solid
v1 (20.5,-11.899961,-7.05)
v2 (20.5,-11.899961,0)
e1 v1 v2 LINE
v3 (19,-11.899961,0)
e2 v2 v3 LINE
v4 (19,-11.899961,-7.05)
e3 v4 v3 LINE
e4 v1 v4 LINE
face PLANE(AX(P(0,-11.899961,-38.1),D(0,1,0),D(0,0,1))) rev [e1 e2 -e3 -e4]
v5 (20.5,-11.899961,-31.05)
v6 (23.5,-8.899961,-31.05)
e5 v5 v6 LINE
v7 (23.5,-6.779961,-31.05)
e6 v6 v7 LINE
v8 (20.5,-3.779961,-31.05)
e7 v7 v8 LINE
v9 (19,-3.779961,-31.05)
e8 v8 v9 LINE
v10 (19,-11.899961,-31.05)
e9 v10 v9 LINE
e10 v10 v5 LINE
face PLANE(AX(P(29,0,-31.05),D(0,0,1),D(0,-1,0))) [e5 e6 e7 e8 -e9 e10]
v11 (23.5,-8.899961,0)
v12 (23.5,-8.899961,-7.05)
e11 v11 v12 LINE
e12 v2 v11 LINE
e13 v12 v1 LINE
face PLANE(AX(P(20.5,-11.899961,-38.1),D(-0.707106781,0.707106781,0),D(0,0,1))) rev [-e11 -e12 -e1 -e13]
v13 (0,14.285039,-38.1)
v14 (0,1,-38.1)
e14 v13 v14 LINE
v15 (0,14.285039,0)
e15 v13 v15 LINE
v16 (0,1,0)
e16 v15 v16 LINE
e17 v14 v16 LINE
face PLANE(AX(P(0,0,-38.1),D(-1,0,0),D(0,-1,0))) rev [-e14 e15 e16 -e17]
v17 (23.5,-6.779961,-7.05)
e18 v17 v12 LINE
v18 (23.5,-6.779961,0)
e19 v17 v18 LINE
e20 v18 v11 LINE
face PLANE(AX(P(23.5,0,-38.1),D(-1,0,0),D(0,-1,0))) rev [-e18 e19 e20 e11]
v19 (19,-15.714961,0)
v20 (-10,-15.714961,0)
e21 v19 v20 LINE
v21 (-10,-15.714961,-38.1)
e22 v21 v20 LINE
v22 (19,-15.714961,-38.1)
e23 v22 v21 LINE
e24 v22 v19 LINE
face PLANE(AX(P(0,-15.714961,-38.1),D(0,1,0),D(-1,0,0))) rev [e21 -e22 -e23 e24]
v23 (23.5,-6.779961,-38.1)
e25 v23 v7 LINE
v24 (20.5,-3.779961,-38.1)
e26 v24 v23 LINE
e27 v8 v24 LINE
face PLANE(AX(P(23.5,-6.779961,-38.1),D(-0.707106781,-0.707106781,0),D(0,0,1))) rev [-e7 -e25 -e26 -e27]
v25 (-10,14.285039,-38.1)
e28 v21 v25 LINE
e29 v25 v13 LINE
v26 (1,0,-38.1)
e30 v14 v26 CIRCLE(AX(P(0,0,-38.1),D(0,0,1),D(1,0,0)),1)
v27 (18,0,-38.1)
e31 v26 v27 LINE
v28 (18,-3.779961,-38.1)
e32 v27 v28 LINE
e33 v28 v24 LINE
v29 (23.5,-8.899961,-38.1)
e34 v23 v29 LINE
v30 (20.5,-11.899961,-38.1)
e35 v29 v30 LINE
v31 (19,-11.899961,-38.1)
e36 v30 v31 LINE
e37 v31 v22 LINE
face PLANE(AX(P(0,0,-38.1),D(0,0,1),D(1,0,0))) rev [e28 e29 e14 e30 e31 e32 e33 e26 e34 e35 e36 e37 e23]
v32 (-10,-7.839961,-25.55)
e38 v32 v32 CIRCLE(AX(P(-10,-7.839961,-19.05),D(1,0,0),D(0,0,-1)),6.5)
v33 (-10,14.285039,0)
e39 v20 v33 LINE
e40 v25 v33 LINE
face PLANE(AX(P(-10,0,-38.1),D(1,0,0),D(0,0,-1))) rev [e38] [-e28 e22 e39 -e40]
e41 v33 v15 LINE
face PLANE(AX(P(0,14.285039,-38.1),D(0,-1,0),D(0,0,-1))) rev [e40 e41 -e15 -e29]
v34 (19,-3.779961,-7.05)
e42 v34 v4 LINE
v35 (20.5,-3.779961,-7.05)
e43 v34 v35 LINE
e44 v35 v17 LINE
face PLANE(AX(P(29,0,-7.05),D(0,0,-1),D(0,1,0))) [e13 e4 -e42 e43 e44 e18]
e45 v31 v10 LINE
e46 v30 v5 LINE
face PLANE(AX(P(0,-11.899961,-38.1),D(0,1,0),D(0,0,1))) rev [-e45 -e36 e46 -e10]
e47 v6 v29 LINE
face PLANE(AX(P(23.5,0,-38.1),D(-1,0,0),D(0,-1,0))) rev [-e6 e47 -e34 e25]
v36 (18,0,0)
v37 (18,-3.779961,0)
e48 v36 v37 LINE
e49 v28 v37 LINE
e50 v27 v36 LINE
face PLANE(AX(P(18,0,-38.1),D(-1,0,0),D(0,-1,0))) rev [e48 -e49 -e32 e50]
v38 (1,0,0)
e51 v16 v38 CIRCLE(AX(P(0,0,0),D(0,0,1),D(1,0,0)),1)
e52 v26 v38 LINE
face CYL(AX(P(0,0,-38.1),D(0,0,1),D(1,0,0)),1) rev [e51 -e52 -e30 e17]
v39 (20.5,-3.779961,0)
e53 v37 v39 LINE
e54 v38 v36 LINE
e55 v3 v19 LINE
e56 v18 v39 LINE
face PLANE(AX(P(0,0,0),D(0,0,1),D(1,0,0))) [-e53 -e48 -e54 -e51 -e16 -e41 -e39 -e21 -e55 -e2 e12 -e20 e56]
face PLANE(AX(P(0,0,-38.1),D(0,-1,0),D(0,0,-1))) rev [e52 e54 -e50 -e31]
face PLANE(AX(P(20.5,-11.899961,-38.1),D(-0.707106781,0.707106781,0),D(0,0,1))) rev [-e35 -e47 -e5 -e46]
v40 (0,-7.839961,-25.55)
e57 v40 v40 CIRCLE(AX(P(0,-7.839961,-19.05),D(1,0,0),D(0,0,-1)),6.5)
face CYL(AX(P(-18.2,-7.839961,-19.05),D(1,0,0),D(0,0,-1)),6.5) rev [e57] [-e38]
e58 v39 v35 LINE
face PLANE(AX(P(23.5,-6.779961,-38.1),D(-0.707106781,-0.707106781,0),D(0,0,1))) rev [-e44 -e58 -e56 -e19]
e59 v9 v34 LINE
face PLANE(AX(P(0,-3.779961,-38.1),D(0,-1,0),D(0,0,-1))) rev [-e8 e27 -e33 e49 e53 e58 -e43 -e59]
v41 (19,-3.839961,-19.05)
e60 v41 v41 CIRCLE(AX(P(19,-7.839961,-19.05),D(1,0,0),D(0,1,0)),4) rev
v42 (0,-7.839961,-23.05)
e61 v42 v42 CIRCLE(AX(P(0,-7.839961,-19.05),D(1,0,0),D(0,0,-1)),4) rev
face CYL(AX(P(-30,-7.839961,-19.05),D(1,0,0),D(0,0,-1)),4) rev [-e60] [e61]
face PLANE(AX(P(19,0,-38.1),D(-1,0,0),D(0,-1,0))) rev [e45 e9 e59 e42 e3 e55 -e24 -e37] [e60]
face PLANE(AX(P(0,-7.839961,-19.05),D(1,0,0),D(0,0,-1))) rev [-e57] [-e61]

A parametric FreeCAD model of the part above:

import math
import FreeCAD as App
import Part
import Sketcher
Q = App.Units.Quantity


def edges_at(feature, points):
    """Names of the edges that pass closest to the given points."""
    edges = feature.Shape.Edges
    near = lambda p: min(range(len(edges)), key=lambda i: edges[i].distToShape(Part.Vertex(*p))[0])
    return sorted({f"Edge{near(p) + 1}" for p in points})

doc = App.newDocument("Part")
params = doc.addObject("Spreadsheet::Sheet", "Params")
for row, (alias, value) in enumerate([
    ("sketch1_radius", "1 mm"),
    ("sketch1_width", "29 mm"),
    ("sketch1_width2", "17 mm"),
    ("sketch1_width3", "10 mm"),
    ("sketch1_height", "30 mm"),
    ("pad1_length", "38.1 mm"),
    ("sketch2_diameter", "8 mm"),
    ("sketch3_diameter", "13 mm"),
    ("pocket2_length", "18.2 mm"),
    ("sketch4_width", "20 mm"),
    ("sketch4_height", "24 mm"),
    ("pocket3_length", "10 mm"),
    ("chamfer_size", "3 mm"),
], start=1):
    params.set(f"A{row}", alias)
    params.set(f"B{row}", "=" + value)
    params.setAlias(f"B{row}", alias)

body = doc.addObject("PartDesign::Body", "Body")

# Sketch on XY plane
sketch1 = body.newObject("Sketcher::SketchObject", "Sketch")
sketch1.AttachmentSupport = (doc.getObject("XY_Plane"), [""])
sketch1.MapMode = "FlatFace"
sketch1.addGeometry(Part.LineSegment(App.Vector(-10, 14.285039, 0), App.Vector(-10, -15.714961, 0)), False)
sketch1.addGeometry(Part.LineSegment(App.Vector(-10, -15.714961, 0), App.Vector(19, -15.714961, 0)), False)
sketch1.addGeometry(Part.LineSegment(App.Vector(19, -15.714961, 0), App.Vector(19, -11.899961, 0)), False)
sketch1.addGeometry(Part.LineSegment(App.Vector(19, -11.899961, 0), App.Vector(23.5, -11.899961, 0)), False)
sketch1.addGeometry(Part.LineSegment(App.Vector(23.5, -11.899961, 0), App.Vector(23.5, -3.779961, 0)), False)
sketch1.addGeometry(Part.LineSegment(App.Vector(23.5, -3.779961, 0), App.Vector(18, -3.779961, 0)), False)
sketch1.addGeometry(Part.LineSegment(App.Vector(18, -3.779961, 0), App.Vector(18, 0, 0)), False)
sketch1.addGeometry(Part.LineSegment(App.Vector(18, 0, 0), App.Vector(1, 0, 0)), False)
sketch1.addGeometry(Part.ArcOfCircle(Part.Circle(App.Vector(0, 0, 0), App.Vector(0, 0, 1), 1), math.radians(90), math.radians(360)), False)
sketch1.addGeometry(Part.LineSegment(App.Vector(0, 1, 0), App.Vector(0, 14.285039, 0)), False)
sketch1.addGeometry(Part.LineSegment(App.Vector(0, 14.285039, 0), App.Vector(-10, 14.285039, 0)), False)
sketch1.addConstraint(Sketcher.Constraint("Coincident", 0, 2, 1, 1))
sketch1.addConstraint(Sketcher.Constraint("Coincident", 1, 2, 2, 1))
sketch1.addConstraint(Sketcher.Constraint("Coincident", 2, 2, 3, 1))
sketch1.addConstraint(Sketcher.Constraint("Coincident", 3, 2, 4, 1))
sketch1.addConstraint(Sketcher.Constraint("Coincident", 4, 2, 5, 1))
sketch1.addConstraint(Sketcher.Constraint("Coincident", 5, 2, 6, 1))
sketch1.addConstraint(Sketcher.Constraint("Coincident", 6, 2, 7, 1))
sketch1.addConstraint(Sketcher.Constraint("Coincident", 7, 2, 8, 2))
sketch1.addConstraint(Sketcher.Constraint("Coincident", 8, 1, 9, 1))
sketch1.addConstraint(Sketcher.Constraint("Coincident", 9, 2, 10, 1))
sketch1.addConstraint(Sketcher.Constraint("Coincident", 10, 2, 0, 1))
sketch1.addConstraint(Sketcher.Constraint("Vertical", 0))
sketch1.addConstraint(Sketcher.Constraint("Horizontal", 1))
sketch1.addConstraint(Sketcher.Constraint("Vertical", 2))
sketch1.addConstraint(Sketcher.Constraint("Horizontal", 3))
sketch1.addConstraint(Sketcher.Constraint("Vertical", 4))
sketch1.addConstraint(Sketcher.Constraint("Horizontal", 5))
sketch1.addConstraint(Sketcher.Constraint("Vertical", 6))
sketch1.addConstraint(Sketcher.Constraint("Horizontal", 7))
sketch1.addConstraint(Sketcher.Constraint("Vertical", 9))
sketch1.addConstraint(Sketcher.Constraint("Horizontal", 10))
sketch1.addConstraint(Sketcher.Constraint("Coincident", 8, 3, -1, 1))
sketch1.addConstraint(Sketcher.Constraint("PointOnObject", 6, 2, -1))
sketch1.addConstraint(Sketcher.Constraint("PointOnObject", 8, 1, -2))
sketch1.addConstraint(Sketcher.Constraint("Radius", 8, Q("1 mm")))
sketch1.addConstraint(Sketcher.Constraint("DistanceX", 1, 1, 1, 2, Q("29 mm")))
sketch1.addConstraint(Sketcher.Constraint("DistanceX", 7, 2, 7, 1, Q("17 mm")))
sketch1.addConstraint(Sketcher.Constraint("DistanceX", 10, 2, 10, 1, Q("10 mm")))
sketch1.addConstraint(Sketcher.Constraint("DistanceY", 0, 2, 0, 1, Q("30 mm")))
sketch1.addConstraint(Sketcher.Constraint("DistanceX", 3, 1, 3, 2, Q("4.5 mm")))
sketch1.addConstraint(Sketcher.Constraint("DistanceY", 4, 1, 4, 2, Q("8.12 mm")))
sketch1.addConstraint(Sketcher.Constraint("DistanceY", 2, 1, 2, 2, Q("3.815 mm")))
sketch1.addConstraint(Sketcher.Constraint("DistanceY", 6, 1, 6, 2, Q("3.779961 mm")))
sketch1.setExpression("Constraints[24]", "Params.sketch1_radius")
sketch1.setExpression("Constraints[25]", "Params.sketch1_width")
sketch1.setExpression("Constraints[26]", "Params.sketch1_width2")
sketch1.setExpression("Constraints[27]", "Params.sketch1_width3")
sketch1.setExpression("Constraints[28]", "Params.sketch1_height")
pad1 = body.newObject("PartDesign::Pad", "Pad")
pad1.Profile = sketch1
pad1.setExpression("Length", "Params.pad1_length")
pad1.Reversed = True

# Sketch on YZ plane
sketch2 = body.newObject("Sketcher::SketchObject", "Sketch001")
sketch2.AttachmentSupport = (doc.getObject("YZ_Plane"), [""])
sketch2.MapMode = "FlatFace"
sketch2.addGeometry(Part.Circle(App.Vector(-7.839961, 19.05, 0), App.Vector(0, 0, 1), 4), False)
sketch2.addGeometry(Part.Circle(App.Vector(-7.839961, -19.05, 0), App.Vector(0, 0, 1), 4), False)
sketch2.addConstraint(Sketcher.Constraint("Equal", 0, 1))
sketch2.addConstraint(Sketcher.Constraint("Symmetric", 0, 3, 1, 3, -1))
sketch2.addConstraint(Sketcher.Constraint("Diameter", 0, Q("8 mm")))
sketch2.addConstraint(Sketcher.Constraint("DistanceY", 1, 3, 0, 3, Q("38.1 mm")))
sketch2.addConstraint(Sketcher.Constraint("DistanceX", 0, 3, -1, 1, Q("7.839961 mm")))
sketch2.setExpression("Constraints[2]", "Params.sketch2_diameter")
pocket1 = body.newObject("PartDesign::Pocket", "Pocket")
pocket1.Profile = sketch2
pocket1.Type = "ThroughAll"
pocket1.Midplane = True

# Sketch on YZ plane
sketch3 = body.newObject("Sketcher::SketchObject", "Sketch002")
sketch3.AttachmentSupport = (doc.getObject("YZ_Plane"), [""])
sketch3.MapMode = "FlatFace"
sketch3.addGeometry(Part.Circle(App.Vector(-7.839961, -19.05, 0), App.Vector(0, 0, 1), 6.5), False)
sketch3.addConstraint(Sketcher.Constraint("Diameter", 0, Q("13 mm")))
sketch3.addConstraint(Sketcher.Constraint("DistanceY", 0, 3, -1, 1, Q("19.05 mm")))
sketch3.addConstraint(Sketcher.Constraint("DistanceX", 0, 3, -1, 1, Q("7.839961 mm")))
sketch3.setExpression("Constraints[0]", "Params.sketch3_diameter")
pocket2 = body.newObject("PartDesign::Pocket", "Pocket001")
pocket2.Profile = sketch3
pocket2.setExpression("Length", "Params.pocket2_length")

# Sketch on YZ plane
sketch4 = body.newObject("Sketcher::SketchObject", "Sketch003")
sketch4.AttachmentSupport = (doc.getObject("YZ_Plane"), [""])
sketch4.MapMode = "FlatFace"
sketch4.AttachmentOffset = App.Placement(App.Vector(0, 0, 19), App.Rotation())
sketch4.addGeometry(Part.LineSegment(App.Vector(2.160039, -7.05, 0), App.Vector(-17.839961, -7.05, 0)), False)
sketch4.addGeometry(Part.LineSegment(App.Vector(-17.839961, -7.05, 0), App.Vector(-17.839961, -31.05, 0)), False)
sketch4.addGeometry(Part.LineSegment(App.Vector(-17.839961, -31.05, 0), App.Vector(2.160039, -31.05, 0)), False)
sketch4.addGeometry(Part.LineSegment(App.Vector(2.160039, -31.05, 0), App.Vector(2.160039, -7.05, 0)), False)
sketch4.addConstraint(Sketcher.Constraint("Coincident", 0, 2, 1, 1))
sketch4.addConstraint(Sketcher.Constraint("Coincident", 1, 2, 2, 1))
sketch4.addConstraint(Sketcher.Constraint("Coincident", 2, 2, 3, 1))
sketch4.addConstraint(Sketcher.Constraint("Coincident", 3, 2, 0, 1))
sketch4.addConstraint(Sketcher.Constraint("Horizontal", 0))
sketch4.addConstraint(Sketcher.Constraint("Vertical", 1))
sketch4.addConstraint(Sketcher.Constraint("Horizontal", 2))
sketch4.addConstraint(Sketcher.Constraint("Vertical", 3))
sketch4.addConstraint(Sketcher.Constraint("DistanceX", 0, 2, 0, 1, Q("20 mm")))
sketch4.addConstraint(Sketcher.Constraint("DistanceY", 1, 2, 1, 1, Q("24 mm")))
sketch4.addConstraint(Sketcher.Constraint("DistanceY", 0, 2, -1, 1, Q("7.05 mm")))
sketch4.addConstraint(Sketcher.Constraint("DistanceX", 0, 2, -1, 1, Q("17.839961 mm")))
sketch4.setExpression("Constraints[8]", "Params.sketch4_width")
sketch4.setExpression("Constraints[9]", "Params.sketch4_height")
pocket3 = body.newObject("PartDesign::Pocket", "Pocket002")
pocket3.Profile = sketch4
pocket3.setExpression("Length", "Params.pocket3_length")
pocket3.Reversed = True
doc.recompute()

chamfer = body.newObject("PartDesign::Chamfer", "Chamfer")
chamfer.Base = (pocket3, edges_at(pocket3, [
    (23.5, -3.78, -34.575),
    (23.5, -11.9, -34.575),
    (23.5, -11.9, -3.525),
    (23.5, -3.78, -3.525),
]))
chamfer.setExpression("Size", "Params.chamfer_size")

doc.recompute()
